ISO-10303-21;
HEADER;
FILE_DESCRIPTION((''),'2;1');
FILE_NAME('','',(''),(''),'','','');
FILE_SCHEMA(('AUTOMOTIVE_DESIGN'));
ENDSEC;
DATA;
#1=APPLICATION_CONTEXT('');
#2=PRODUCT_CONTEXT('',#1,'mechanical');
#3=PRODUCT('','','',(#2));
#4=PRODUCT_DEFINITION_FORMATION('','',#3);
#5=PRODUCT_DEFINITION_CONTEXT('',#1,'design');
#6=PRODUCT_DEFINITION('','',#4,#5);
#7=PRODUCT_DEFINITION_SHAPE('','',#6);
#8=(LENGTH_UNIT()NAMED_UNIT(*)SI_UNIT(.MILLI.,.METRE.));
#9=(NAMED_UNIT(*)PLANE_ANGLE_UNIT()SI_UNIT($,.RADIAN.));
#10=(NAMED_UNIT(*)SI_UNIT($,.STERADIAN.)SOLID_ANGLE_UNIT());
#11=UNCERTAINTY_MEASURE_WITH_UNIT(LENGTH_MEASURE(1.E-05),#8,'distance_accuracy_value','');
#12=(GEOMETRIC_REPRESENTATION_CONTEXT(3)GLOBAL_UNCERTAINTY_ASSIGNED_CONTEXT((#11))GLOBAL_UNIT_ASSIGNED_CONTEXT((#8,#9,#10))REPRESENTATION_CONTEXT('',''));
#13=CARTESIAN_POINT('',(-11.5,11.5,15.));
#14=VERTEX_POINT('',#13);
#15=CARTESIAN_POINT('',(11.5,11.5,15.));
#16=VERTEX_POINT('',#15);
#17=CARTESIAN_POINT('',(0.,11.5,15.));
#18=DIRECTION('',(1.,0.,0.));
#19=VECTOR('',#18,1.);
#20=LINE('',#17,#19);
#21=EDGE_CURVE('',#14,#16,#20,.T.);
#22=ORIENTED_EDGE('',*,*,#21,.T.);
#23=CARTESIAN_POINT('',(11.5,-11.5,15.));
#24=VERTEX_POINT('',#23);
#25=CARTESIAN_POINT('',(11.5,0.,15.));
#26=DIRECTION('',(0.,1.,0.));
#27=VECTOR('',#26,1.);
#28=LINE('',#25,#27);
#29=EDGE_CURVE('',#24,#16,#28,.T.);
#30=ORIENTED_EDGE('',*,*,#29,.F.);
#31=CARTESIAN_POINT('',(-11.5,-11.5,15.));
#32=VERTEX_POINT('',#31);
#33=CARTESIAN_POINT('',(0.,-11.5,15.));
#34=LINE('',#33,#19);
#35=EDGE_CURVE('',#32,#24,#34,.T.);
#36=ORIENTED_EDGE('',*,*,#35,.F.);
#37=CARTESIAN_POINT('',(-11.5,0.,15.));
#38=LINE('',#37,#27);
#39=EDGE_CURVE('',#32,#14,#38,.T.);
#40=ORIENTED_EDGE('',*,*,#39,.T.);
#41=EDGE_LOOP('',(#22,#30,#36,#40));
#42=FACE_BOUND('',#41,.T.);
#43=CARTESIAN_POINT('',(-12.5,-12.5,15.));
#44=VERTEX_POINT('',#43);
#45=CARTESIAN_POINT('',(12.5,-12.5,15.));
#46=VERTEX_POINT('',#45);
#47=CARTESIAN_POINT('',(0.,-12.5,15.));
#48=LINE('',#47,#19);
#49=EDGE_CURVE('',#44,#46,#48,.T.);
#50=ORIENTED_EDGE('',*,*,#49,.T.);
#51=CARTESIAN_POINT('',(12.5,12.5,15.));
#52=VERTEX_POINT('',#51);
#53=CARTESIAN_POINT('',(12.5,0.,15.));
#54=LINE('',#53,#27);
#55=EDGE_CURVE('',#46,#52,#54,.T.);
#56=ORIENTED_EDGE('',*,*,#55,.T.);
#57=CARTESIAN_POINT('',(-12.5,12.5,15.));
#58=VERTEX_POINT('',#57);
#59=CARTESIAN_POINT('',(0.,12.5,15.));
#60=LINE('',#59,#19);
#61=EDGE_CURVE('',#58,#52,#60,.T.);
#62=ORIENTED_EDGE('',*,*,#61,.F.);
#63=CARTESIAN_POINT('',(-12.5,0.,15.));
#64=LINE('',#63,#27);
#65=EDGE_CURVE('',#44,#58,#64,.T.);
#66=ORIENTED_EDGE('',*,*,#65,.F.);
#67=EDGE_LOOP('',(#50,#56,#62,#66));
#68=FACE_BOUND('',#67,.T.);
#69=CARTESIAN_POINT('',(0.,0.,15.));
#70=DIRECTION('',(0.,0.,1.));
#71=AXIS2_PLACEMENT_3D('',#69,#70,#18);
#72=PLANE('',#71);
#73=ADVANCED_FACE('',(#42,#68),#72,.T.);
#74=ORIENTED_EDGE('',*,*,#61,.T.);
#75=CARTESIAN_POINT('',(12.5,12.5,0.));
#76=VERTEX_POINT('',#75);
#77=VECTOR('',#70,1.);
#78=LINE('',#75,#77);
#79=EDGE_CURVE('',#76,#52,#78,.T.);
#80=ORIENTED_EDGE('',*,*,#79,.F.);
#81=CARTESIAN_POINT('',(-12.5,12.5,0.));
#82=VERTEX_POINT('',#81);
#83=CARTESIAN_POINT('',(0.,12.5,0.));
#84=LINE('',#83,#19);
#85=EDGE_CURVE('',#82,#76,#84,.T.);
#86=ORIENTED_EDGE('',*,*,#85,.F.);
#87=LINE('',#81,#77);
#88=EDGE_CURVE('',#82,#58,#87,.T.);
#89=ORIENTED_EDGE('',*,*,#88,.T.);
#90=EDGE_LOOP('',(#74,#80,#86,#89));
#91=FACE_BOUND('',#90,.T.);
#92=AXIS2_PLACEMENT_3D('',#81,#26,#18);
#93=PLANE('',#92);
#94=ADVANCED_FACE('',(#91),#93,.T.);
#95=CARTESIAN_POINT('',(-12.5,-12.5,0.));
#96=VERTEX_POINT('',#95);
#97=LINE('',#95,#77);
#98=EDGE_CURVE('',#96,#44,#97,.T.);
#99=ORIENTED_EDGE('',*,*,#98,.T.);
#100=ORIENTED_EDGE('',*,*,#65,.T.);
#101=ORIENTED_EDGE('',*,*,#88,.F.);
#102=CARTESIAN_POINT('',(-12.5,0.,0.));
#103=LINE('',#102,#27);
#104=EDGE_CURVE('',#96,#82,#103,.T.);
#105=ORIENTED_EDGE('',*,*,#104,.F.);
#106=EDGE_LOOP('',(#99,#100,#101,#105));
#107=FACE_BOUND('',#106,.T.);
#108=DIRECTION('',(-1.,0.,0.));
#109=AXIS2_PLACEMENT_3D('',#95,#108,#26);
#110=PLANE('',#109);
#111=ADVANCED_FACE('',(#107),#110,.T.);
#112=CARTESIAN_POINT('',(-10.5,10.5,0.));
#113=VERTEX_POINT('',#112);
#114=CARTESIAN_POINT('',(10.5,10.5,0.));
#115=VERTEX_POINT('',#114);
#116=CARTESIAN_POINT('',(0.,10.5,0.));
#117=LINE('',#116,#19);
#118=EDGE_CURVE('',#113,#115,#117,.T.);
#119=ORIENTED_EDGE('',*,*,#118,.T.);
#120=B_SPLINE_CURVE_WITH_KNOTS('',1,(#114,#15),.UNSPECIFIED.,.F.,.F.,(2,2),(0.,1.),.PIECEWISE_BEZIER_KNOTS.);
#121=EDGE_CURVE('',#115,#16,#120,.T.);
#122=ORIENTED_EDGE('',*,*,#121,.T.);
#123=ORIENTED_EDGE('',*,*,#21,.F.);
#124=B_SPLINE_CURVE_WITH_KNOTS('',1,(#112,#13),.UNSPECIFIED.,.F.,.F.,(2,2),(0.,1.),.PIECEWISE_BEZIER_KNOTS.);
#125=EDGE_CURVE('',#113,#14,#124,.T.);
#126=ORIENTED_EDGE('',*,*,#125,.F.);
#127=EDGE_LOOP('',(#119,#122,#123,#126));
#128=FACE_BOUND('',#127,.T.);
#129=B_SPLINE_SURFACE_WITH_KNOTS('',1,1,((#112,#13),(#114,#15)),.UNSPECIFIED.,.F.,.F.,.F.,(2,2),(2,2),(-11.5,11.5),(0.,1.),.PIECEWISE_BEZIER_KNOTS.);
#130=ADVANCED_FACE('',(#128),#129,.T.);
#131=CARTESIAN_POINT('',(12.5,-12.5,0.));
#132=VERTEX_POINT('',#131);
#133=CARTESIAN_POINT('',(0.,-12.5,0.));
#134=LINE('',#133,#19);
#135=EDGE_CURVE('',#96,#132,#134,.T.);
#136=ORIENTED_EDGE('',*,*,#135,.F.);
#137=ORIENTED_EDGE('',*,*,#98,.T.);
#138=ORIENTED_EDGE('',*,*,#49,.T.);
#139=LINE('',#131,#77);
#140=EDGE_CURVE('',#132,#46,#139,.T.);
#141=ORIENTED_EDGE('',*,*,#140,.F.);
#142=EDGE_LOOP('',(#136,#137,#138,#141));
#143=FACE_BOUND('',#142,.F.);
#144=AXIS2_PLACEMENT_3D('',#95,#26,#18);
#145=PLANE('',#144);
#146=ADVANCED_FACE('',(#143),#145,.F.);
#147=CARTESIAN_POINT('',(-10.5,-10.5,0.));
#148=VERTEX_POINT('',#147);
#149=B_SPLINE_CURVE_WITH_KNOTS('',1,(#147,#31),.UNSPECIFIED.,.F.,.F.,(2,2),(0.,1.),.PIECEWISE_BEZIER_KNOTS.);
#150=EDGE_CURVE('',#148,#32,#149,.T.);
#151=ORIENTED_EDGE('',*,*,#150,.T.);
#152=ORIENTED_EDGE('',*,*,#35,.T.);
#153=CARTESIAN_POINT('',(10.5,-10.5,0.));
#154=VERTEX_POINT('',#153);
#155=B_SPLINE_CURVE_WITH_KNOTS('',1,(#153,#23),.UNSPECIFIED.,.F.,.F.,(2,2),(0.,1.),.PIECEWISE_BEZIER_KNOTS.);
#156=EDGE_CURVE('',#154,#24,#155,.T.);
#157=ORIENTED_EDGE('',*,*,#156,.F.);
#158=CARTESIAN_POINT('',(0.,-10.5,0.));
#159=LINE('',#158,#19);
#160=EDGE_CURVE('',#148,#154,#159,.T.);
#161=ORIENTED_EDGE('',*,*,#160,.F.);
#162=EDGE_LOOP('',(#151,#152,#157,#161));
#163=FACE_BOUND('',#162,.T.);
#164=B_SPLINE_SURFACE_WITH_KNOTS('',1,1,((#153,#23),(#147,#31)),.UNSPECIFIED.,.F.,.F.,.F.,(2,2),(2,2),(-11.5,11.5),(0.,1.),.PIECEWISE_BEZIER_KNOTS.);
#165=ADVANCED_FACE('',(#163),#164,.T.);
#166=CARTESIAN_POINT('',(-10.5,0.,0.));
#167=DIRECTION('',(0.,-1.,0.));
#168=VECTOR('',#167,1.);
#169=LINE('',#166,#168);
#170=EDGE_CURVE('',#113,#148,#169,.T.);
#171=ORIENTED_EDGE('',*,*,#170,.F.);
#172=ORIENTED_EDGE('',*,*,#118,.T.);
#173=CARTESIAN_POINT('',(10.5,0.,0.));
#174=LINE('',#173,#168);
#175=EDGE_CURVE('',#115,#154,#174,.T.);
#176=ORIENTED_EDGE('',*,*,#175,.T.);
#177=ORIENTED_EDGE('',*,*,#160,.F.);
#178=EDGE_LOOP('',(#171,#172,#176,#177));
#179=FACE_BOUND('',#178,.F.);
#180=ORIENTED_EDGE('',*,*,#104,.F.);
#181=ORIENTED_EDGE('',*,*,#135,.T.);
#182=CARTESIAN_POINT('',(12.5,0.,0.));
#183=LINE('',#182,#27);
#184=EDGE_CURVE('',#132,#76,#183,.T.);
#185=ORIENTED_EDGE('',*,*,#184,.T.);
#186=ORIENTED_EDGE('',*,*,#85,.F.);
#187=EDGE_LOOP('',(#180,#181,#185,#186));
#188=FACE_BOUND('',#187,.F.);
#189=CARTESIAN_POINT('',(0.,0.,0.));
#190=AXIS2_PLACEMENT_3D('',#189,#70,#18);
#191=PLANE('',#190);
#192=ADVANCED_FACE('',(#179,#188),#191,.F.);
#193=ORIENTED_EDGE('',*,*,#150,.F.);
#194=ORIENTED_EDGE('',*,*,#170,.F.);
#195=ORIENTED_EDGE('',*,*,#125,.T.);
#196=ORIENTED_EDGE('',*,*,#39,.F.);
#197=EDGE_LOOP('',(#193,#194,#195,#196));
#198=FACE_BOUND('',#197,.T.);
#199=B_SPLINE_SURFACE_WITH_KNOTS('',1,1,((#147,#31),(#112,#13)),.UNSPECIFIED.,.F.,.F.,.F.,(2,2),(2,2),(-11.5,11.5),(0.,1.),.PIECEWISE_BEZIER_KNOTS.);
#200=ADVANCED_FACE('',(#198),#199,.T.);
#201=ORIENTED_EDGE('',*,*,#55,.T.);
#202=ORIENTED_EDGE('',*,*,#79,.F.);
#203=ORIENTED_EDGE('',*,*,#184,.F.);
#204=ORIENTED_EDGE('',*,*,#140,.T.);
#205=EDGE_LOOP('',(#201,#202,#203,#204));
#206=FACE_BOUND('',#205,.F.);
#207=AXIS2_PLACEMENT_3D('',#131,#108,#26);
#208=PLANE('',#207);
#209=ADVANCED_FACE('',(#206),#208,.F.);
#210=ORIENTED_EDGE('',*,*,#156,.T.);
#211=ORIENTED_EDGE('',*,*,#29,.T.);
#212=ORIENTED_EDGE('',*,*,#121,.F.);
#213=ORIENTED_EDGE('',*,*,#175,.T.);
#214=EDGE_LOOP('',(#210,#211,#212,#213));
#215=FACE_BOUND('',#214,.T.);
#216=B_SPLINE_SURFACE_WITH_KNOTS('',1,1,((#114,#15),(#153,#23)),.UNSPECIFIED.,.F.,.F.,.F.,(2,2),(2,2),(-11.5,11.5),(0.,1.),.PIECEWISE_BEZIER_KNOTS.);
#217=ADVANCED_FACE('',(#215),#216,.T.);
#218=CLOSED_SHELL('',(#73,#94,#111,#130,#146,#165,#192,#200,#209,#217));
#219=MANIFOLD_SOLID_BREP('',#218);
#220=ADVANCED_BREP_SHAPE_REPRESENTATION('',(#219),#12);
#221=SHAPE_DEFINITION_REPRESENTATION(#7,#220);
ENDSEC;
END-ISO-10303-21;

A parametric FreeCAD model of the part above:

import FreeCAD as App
import Part
import Sketcher

V = App.Vector
Q = App.Units.Quantity

doc = App.newDocument("Part")
params = doc.addObject("Spreadsheet::Sheet", "Params")
for row, (alias, value) in enumerate([
    ("sketch1_width", "25 mm"),
    ("pad1_length", "15 mm"),
    ("sketch2_width", "21 mm"),
    ("sketch3_width", "23 mm"),
], start=1):
    params.set(f"A{row}", alias)
    params.set(f"B{row}", "=" + value)
    params.setAlias(f"B{row}", alias)

body = doc.addObject("PartDesign::Body", "Body")

# Sketch on XY plane
sketch1 = body.newObject("Sketcher::SketchObject", "Sketch")
sketch1.AttachmentSupport = (doc.getObject("XY_Plane"), [""])
sketch1.MapMode = "FlatFace"
sketch1.addGeometry(Part.LineSegment(V(-12, 12, 0), V(-12, -12, 0)), False)
sketch1.addGeometry(Part.LineSegment(V(-12, -12, 0), V(12, -12, 0)), False)
sketch1.addGeometry(Part.LineSegment(V(12, -12, 0), V(12, 12, 0)), False)
sketch1.addGeometry(Part.LineSegment(V(12, 12, 0), V(-12, 12, 0)), False)
sketch1.addConstraint(Sketcher.Constraint("Coincident", 0, 2, 1, 1))
sketch1.addConstraint(Sketcher.Constraint("Coincident", 1, 2, 2, 1))
sketch1.addConstraint(Sketcher.Constraint("Coincident", 2, 2, 3, 1))
sketch1.addConstraint(Sketcher.Constraint("Coincident", 3, 2, 0, 1))
sketch1.addConstraint(Sketcher.Constraint("Vertical", 0))
sketch1.addConstraint(Sketcher.Constraint("Horizontal", 1))
sketch1.addConstraint(Sketcher.Constraint("Vertical", 2))
sketch1.addConstraint(Sketcher.Constraint("Horizontal", 3))
sketch1.addConstraint(Sketcher.Constraint("Symmetric", 0, 2, 2, 2, -1, 1))
sketch1.addConstraint(Sketcher.Constraint("Equal", 3, 0))
sketch1.addConstraint(Sketcher.Constraint("DistanceX", 1, 1, 1, 2, Q("25 mm")))
sketch1.setExpression("Constraints[10]", "Params.sketch1_width")
pad1 = body.newObject("PartDesign::Pad", "Pad")
pad1.Profile = sketch1
pad1.setExpression("Length", "Params.pad1_length")

# Sketch on XY plane
sketch2 = body.newObject("Sketcher::SketchObject", "Sketch001")
sketch2.AttachmentSupport = (doc.getObject("XY_Plane"), [""])
sketch2.MapMode = "FlatFace"
sketch2.addGeometry(Part.LineSegment(V(-10, -10, 0), V(-10, 10, 0)), False)
sketch2.addGeometry(Part.LineSegment(V(-10, 10, 0), V(10, 10, 0)), False)
sketch2.addGeometry(Part.LineSegment(V(10, 10, 0), V(10, -10, 0)), False)
sketch2.addGeometry(Part.LineSegment(V(10, -10, 0), V(-10, -10, 0)), False)
sketch2.addConstraint(Sketcher.Constraint("Coincident", 0, 2, 1, 1))
sketch2.addConstraint(Sketcher.Constraint("Coincident", 1, 2, 2, 1))
sketch2.addConstraint(Sketcher.Constraint("Coincident", 2, 2, 3, 1))
sketch2.addConstraint(Sketcher.Constraint("Coincident", 3, 2, 0, 1))
sketch2.addConstraint(Sketcher.Constraint("Vertical", 0))
sketch2.addConstraint(Sketcher.Constraint("Horizontal", 1))
sketch2.addConstraint(Sketcher.Constraint("Vertical", 2))
sketch2.addConstraint(Sketcher.Constraint("Horizontal", 3))
sketch2.addConstraint(Sketcher.Constraint("Symmetric", 0, 2, 2, 2, -1, 1))
sketch2.addConstraint(Sketcher.Constraint("Equal", 3, 0))
sketch2.addConstraint(Sketcher.Constraint("DistanceX", 1, 1, 1, 2, Q("21 mm")))
sketch2.setExpression("Constraints[10]", "Params.sketch2_width")

# Sketch on XY plane
sketch3 = body.newObject("Sketcher::SketchObject", "Sketch002")
sketch3.AttachmentSupport = (doc.getObject("XY_Plane"), [""])
sketch3.MapMode = "FlatFace"
sketch3.AttachmentOffset = App.Placement(V(0, 0, 15), App.Rotation())
sketch3.addGeometry(Part.LineSegment(V(-12, 12, 0), V(-12, -12, 0)), False)
sketch3.addGeometry(Part.LineSegment(V(-12, -12, 0), V(12, -12, 0)), False)
sketch3.addGeometry(Part.LineSegment(V(12, -12, 0), V(12, 12, 0)), False)
sketch3.addGeometry(Part.LineSegment(V(12, 12, 0), V(-12, 12, 0)), False)
sketch3.addConstraint(Sketcher.Constraint("Coincident", 0, 2, 1, 1))
sketch3.addConstraint(Sketcher.Constraint("Coincident", 1, 2, 2, 1))
sketch3.addConstraint(Sketcher.Constraint("Coincident", 2, 2, 3, 1))
sketch3.addConstraint(Sketcher.Constraint("Coincident", 3, 2, 0, 1))
sketch3.addConstraint(Sketcher.Constraint("Vertical", 0))
sketch3.addConstraint(Sketcher.Constraint("Horizontal", 1))
sketch3.addConstraint(Sketcher.Constraint("Vertical", 2))
sketch3.addConstraint(Sketcher.Constraint("Horizontal", 3))
sketch3.addConstraint(Sketcher.Constraint("Symmetric", 0, 2, 2, 2, -1, 1))
sketch3.addConstraint(Sketcher.Constraint("Equal", 3, 0))
sketch3.addConstraint(Sketcher.Constraint("DistanceX", 1, 1, 1, 2, Q("23 mm")))
sketch3.setExpression("Constraints[10]", "Params.sketch3_width")

subtractiveloft = body.newObject("PartDesign::SubtractiveLoft", "SubtractiveLoft")
subtractiveloft.Profile = sketch2
subtractiveloft.Sections = [sketch3]

doc.recompute()
